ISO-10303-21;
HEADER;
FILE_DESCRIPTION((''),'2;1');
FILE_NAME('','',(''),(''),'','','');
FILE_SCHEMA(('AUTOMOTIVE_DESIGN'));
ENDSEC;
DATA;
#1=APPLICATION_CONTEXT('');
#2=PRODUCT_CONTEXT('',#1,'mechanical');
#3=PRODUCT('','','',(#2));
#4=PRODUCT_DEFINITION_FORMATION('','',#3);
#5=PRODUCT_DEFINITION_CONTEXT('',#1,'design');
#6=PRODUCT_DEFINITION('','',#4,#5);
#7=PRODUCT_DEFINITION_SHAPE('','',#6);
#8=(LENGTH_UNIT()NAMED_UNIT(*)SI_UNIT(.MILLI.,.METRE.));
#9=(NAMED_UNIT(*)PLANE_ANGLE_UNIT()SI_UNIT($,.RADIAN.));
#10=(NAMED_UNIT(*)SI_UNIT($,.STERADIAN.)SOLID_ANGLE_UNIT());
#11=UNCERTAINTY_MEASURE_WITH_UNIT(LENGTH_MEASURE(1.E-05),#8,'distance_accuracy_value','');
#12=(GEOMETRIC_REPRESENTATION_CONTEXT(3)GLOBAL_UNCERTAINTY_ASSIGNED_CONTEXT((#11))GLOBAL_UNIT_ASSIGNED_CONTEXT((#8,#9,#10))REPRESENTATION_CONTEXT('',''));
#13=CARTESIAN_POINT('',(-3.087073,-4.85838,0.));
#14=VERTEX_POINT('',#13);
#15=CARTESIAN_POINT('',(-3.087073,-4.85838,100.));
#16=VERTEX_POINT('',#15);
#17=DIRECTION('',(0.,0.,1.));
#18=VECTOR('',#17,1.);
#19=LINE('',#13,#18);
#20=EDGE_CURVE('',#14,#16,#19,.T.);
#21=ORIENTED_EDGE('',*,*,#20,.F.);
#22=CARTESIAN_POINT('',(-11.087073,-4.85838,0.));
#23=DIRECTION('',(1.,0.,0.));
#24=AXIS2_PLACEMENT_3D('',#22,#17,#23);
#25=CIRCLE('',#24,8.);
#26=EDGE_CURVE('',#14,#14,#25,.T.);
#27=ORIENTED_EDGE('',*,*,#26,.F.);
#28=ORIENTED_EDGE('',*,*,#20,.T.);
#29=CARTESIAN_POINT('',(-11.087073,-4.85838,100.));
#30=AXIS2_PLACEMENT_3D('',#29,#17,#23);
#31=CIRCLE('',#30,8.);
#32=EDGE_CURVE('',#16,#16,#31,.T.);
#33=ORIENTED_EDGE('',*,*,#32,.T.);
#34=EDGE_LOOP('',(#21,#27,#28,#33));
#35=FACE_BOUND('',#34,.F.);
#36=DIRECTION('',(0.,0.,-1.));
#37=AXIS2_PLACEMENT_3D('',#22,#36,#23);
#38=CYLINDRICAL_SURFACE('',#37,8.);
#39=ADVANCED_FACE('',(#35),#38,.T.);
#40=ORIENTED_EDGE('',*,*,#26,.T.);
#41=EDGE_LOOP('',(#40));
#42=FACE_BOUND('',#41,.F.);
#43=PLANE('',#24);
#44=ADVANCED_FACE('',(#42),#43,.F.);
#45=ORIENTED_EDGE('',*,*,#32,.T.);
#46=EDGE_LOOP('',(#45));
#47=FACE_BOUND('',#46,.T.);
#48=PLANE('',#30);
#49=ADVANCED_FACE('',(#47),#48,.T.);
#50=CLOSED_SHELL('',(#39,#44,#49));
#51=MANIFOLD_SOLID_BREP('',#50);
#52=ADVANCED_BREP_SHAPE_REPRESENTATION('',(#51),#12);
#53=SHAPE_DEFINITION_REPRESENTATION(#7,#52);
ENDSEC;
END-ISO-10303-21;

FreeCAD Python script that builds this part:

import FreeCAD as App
import Part
import Sketcher
Q = App.Units.Quantity

doc = App.newDocument("Part")
params = doc.addObject("Spreadsheet::Sheet", "Params")
for row, (alias, value) in enumerate([
    ("sketch1_diameter", "16 mm"),
    ("pad1_length", "100 mm"),
], start=1):
    params.set(f"A{row}", alias)
    params.set(f"B{row}", "=" + value)
    params.setAlias(f"B{row}", alias)

body = doc.addObject("PartDesign::Body", "Body")

# Sketch on XY plane
sketch1 = body.newObject("Sketcher::SketchObject", "Sketch")
sketch1.AttachmentSupport = (doc.getObject("XY_Plane"), [""])
sketch1.MapMode = "FlatFace"
sketch1.addGeometry(Part.Circle(App.Vector(-11.087073, -4.85838, 0), App.Vector(0, 0, 1), 8), False)
sketch1.addConstraint(Sketcher.Constraint("Diameter", 0, Q("16 mm")))
sketch1.addConstraint(Sketcher.Constraint("DistanceY", 0, 3, -1, 1, Q("4.85838 mm")))
sketch1.addConstraint(Sketcher.Constraint("DistanceX", 0, 3, -1, 1, Q("11.087073 mm")))
sketch1.setExpression("Constraints[0]", "Params.sketch1_diameter")
pad1 = body.newObject("PartDesign::Pad", "Pad")
pad1.Profile = sketch1
pad1.setExpression("Length", "Params.pad1_length")

doc.recompute()
